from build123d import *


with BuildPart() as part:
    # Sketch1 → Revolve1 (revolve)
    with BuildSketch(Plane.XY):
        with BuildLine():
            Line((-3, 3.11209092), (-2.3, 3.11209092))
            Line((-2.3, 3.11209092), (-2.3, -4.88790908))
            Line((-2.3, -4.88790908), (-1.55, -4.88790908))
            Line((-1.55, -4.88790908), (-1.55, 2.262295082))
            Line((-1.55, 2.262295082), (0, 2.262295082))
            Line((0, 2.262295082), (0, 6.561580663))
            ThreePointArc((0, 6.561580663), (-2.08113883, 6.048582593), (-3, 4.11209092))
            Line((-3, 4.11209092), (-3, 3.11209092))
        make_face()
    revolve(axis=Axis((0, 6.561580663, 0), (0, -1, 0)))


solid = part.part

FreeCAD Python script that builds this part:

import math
import FreeCAD as App
import Part
import Sketcher
from FreeCAD import Vector

doc = App.newDocument("Part")
params = doc.addObject("Spreadsheet::Sheet", "Params")
for row, (alias, value) in enumerate([
    ("sketch1_radius", "2.5 mm"),
    ("sketch1_height", "8 mm"),
    ("sketch1_height2", "1 mm"),
    ("sketch1_width", "0.7 mm"),
    ("sketch1_width2", "0.75 mm"),
    ("revolution_angle", "360 deg"),
], start=1):
    params.set(f"A{row}", alias)
    params.set(f"B{row}", "=" + value)
    params.setAlias(f"B{row}", alias)

body = doc.addObject("PartDesign::Body", "Body")

sketch1 = doc.addObject("Sketcher::SketchObject", "Sketch")
body.addObject(sketch1)
sketch1.AttachmentSupport = (doc.XY_Plane, [""])
sketch1.MapMode = "FlatFace"
sketch1.addGeometry([
    Part.LineSegment(Vector(-3, 3.1, 0), Vector(-2.3, 3.1, 0)),
    Part.LineSegment(Vector(-2.3, 3.1, 0), Vector(-2.3, -4.9, 0)),
    Part.LineSegment(Vector(-2.3, -4.9, 0), Vector(-1.6, -4.9, 0)),
    Part.LineSegment(Vector(-1.6, -4.9, 0), Vector(-1.6, 2.3, 0)),
    Part.LineSegment(Vector(-1.6, 2.3, 0), Vector(0, 2.3, 0)),
    Part.LineSegment(Vector(0, 2.3, 0), Vector(0, 6.6, 0)),
    Part.ArcOfCircle(Part.Circle(Vector(-0.5, 4.1, 0), Vector(0, 0, 1), 2.5), math.radians(78), math.radians(180)),
    Part.LineSegment(Vector(-3, 4.1, 0), Vector(-3, 3.1, 0)),
], False)
sketch1.addConstraint([
    Sketcher.Constraint("Coincident", 0, 2, 1, 1),
    Sketcher.Constraint("Coincident", 1, 2, 2, 1),
    Sketcher.Constraint("Coincident", 2, 2, 3, 1),
    Sketcher.Constraint("Coincident", 3, 2, 4, 1),
    Sketcher.Constraint("Coincident", 4, 2, 5, 1),
    Sketcher.Constraint("Coincident", 5, 2, 6, 1),
    Sketcher.Constraint("Tangent", 6, 2, 7, 1),
    Sketcher.Constraint("Coincident", 7, 2, 0, 1),
    Sketcher.Constraint("Horizontal", 0),
    Sketcher.Constraint("Vertical", 1),
    Sketcher.Constraint("Horizontal", 2),
    Sketcher.Constraint("Vertical", 3),
    Sketcher.Constraint("Horizontal", 4),
    Sketcher.Constraint("Vertical", 5),
    Sketcher.Constraint("Vertical", 7),
    Sketcher.Constraint("PointOnObject", 4, 2, -2),
    Sketcher.Constraint("Radius", 6, 2.5),
    Sketcher.Constraint("DistanceY", 1, 2, 1, 1, 8.0),
    Sketcher.Constraint("DistanceY", 7, 2, 7, 1, 1.0),
    Sketcher.Constraint("DistanceX", 0, 1, 0, 2, 0.7),
    Sketcher.Constraint("DistanceX", 6, 2, -1, 1, 3.0),
    Sketcher.Constraint("DistanceX", 2, 1, 2, 2, 0.75),
    Sketcher.Constraint("DistanceY", 3, 1, 3, 2, 7.150204),
    Sketcher.Constraint("DistanceY", -1, 1, 6, 3, 4.112091),
])
sketch1.setExpression("Constraints[16]", "Params.sketch1_radius")
sketch1.setExpression("Constraints[17]", "Params.sketch1_height")
sketch1.setExpression("Constraints[18]", "Params.sketch1_height2")
sketch1.setExpression("Constraints[19]", "Params.sketch1_width")
sketch1.setExpression("Constraints[21]", "Params.sketch1_width2")
revolution = doc.addObject("PartDesign::Revolution", "Revolution")
body.addObject(revolution)
revolution.Profile = sketch1
revolution.ReferenceAxis = (sketch1, ["V_Axis"])
revolution.setExpression("Angle", "Params.revolution_angle")

doc.recompute()
